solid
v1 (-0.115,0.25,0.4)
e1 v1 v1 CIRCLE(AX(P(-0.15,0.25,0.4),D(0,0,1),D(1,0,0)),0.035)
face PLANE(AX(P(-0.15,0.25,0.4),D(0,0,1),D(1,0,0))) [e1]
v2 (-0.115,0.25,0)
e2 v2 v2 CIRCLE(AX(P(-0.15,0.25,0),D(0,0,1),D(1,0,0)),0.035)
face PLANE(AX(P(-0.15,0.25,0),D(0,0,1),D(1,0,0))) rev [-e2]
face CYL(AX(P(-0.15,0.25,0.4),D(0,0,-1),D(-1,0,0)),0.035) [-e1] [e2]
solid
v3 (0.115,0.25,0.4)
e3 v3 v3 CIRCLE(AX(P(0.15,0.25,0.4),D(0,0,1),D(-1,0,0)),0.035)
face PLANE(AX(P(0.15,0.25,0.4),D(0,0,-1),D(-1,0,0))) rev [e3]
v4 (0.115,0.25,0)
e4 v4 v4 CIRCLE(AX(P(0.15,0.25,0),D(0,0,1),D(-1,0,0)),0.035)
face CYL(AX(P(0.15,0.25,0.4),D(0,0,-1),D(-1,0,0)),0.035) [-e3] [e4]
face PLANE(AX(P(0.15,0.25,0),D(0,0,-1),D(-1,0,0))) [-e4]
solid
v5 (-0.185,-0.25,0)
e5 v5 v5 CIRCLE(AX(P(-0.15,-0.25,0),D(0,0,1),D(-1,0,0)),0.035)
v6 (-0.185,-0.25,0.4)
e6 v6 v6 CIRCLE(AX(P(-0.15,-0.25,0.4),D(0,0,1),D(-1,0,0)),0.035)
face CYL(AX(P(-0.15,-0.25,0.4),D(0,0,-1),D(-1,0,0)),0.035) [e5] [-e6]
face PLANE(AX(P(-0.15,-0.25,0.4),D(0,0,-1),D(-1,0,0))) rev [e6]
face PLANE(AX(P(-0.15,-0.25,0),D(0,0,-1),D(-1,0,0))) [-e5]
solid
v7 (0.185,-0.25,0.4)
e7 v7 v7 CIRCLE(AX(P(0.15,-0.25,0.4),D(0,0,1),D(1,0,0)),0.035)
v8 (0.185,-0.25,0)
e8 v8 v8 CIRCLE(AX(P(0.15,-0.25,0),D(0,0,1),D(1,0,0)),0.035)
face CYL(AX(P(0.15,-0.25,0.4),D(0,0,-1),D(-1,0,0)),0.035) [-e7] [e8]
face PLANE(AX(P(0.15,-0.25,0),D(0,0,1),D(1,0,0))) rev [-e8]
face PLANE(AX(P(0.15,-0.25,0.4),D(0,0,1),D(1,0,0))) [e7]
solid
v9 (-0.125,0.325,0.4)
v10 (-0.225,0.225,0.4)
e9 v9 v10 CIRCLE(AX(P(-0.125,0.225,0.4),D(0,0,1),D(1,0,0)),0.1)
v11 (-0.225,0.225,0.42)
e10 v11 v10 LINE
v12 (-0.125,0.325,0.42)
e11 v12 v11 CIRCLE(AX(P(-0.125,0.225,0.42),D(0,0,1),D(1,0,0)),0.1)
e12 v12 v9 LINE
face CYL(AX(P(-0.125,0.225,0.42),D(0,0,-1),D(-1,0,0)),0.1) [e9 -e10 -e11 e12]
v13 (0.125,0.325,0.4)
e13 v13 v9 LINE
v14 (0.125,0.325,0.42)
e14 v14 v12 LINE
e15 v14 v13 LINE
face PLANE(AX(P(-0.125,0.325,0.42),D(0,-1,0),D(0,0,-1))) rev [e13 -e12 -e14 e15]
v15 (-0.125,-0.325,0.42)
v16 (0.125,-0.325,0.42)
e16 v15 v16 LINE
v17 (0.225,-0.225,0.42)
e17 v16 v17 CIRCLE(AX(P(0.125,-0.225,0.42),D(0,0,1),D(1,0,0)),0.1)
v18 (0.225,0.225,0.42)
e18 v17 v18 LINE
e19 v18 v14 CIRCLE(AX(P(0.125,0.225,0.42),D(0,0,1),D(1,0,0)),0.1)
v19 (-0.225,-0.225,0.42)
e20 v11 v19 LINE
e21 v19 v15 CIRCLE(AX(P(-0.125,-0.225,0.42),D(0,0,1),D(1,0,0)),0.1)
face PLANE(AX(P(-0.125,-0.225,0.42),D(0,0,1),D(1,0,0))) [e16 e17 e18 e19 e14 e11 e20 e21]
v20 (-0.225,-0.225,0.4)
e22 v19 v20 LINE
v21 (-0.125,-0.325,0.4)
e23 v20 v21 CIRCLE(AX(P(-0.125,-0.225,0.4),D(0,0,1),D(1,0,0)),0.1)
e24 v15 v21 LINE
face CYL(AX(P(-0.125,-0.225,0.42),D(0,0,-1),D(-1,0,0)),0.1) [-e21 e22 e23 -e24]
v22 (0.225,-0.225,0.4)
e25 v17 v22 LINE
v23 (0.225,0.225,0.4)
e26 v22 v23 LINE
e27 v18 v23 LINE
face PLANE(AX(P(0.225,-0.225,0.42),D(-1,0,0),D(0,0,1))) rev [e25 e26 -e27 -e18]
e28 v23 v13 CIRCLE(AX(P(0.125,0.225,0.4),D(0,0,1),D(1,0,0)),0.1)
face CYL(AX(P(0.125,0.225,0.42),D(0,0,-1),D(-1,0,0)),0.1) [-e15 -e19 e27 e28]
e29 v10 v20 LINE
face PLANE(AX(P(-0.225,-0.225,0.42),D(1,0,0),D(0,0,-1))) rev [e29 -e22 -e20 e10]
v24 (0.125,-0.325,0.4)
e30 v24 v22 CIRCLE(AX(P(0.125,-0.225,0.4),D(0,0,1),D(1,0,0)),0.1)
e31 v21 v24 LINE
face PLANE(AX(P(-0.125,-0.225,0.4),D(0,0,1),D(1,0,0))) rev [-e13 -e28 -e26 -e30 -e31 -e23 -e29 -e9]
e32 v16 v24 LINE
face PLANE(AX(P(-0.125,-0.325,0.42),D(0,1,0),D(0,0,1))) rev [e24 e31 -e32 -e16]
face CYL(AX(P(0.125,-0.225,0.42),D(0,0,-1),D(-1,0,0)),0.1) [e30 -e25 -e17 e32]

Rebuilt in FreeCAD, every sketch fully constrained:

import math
import FreeCAD as App
import Part
import Sketcher

doc = App.newDocument("Part")
params = doc.addObject("Spreadsheet::Sheet", "Params")
for row, (alias, value) in enumerate([
    ("sketch1_diameter", "0.07 mm"),
    ("pad1_length", "0.4 mm"),
    ("sketch2_diameter", "0.07 mm"),
    ("pad2_length", "0.4 mm"),
    ("sketch3_diameter", "0.07 mm"),
    ("pad3_length", "0.4 mm"),
    ("sketch4_diameter", "0.07 mm"),
    ("pad4_length", "0.4 mm"),
    ("sketch5_radius", "0.1 mm"),
    ("sketch5_width", "0.25 mm"),
    ("sketch5_height", "0.45 mm"),
    ("pad5_length", "0.02 mm"),
], start=1):
    params.set(f"A{row}", alias)
    params.set(f"B{row}", "=" + value)
    params.setAlias(f"B{row}", alias)

body = doc.addObject("PartDesign::Body", "Body")

# Sketch on XY plane
sketch1 = body.newObject("Sketcher::SketchObject", "Sketch")
sketch1.AttachmentSupport = (doc.getObject("XY_Plane"), [""])
sketch1.MapMode = "FlatFace"
sketch1.addGeometry(Part.Circle(App.Vector(-0.15, 0.25, 0), App.Vector(0, 0, 1), 0.035), False)
sketch1.addConstraint([
    Sketcher.Constraint("Diameter", 0, 0.07),
    Sketcher.Constraint("DistanceX", 0, 3, -1, 1, 0.15),
    Sketcher.Constraint("DistanceY", -1, 1, 0, 3, 0.25),
])
sketch1.setExpression("Constraints[0]", "Params.sketch1_diameter")
pad1 = body.newObject("PartDesign::Pad", "Pad")
pad1.Profile = sketch1
pad1.setExpression("Length", "Params.pad1_length")
body2 = doc.addObject("PartDesign::Body", "Body001")

# Sketch on XY plane
sketch2 = body2.newObject("Sketcher::SketchObject", "Sketch001")
sketch2.AttachmentSupport = (doc.getObject("XY_Plane001"), [""])
sketch2.MapMode = "FlatFace"
sketch2.addGeometry(Part.Circle(App.Vector(-0.15, -0.25, 0), App.Vector(0, 0, 1), 0.035), False)
sketch2.addConstraint([
    Sketcher.Constraint("Diameter", 0, 0.07),
    Sketcher.Constraint("DistanceX", 0, 3, -1, 1, 0.15),
    Sketcher.Constraint("DistanceY", 0, 3, -1, 1, 0.25),
])
sketch2.setExpression("Constraints[0]", "Params.sketch2_diameter")
pad2 = body2.newObject("PartDesign::Pad", "Pad001")
pad2.Profile = sketch2
pad2.setExpression("Length", "Params.pad2_length")
body3 = doc.addObject("PartDesign::Body", "Body002")

# Sketch on XY plane
sketch3 = body3.newObject("Sketcher::SketchObject", "Sketch002")
sketch3.AttachmentSupport = (doc.getObject("XY_Plane002"), [""])
sketch3.MapMode = "FlatFace"
sketch3.addGeometry(Part.Circle(App.Vector(0.15, -0.25, 0), App.Vector(0, 0, 1), 0.035), False)
sketch3.addConstraint([
    Sketcher.Constraint("Diameter", 0, 0.07),
    Sketcher.Constraint("DistanceX", -1, 1, 0, 3, 0.15),
    Sketcher.Constraint("DistanceY", 0, 3, -1, 1, 0.25),
])
sketch3.setExpression("Constraints[0]", "Params.sketch3_diameter")
pad3 = body3.newObject("PartDesign::Pad", "Pad002")
pad3.Profile = sketch3
pad3.setExpression("Length", "Params.pad3_length")
body4 = doc.addObject("PartDesign::Body", "Body003")

# Sketch on XY plane
sketch4 = body4.newObject("Sketcher::SketchObject", "Sketch003")
sketch4.AttachmentSupport = (doc.getObject("XY_Plane003"), [""])
sketch4.MapMode = "FlatFace"
sketch4.addGeometry(Part.Circle(App.Vector(0.15, 0.25, 0), App.Vector(0, 0, 1), 0.035), False)
sketch4.addConstraint([
    Sketcher.Constraint("Diameter", 0, 0.07),
    Sketcher.Constraint("DistanceX", -1, 1, 0, 3, 0.15),
    Sketcher.Constraint("DistanceY", -1, 1, 0, 3, 0.25),
])
sketch4.setExpression("Constraints[0]", "Params.sketch4_diameter")
pad4 = body4.newObject("PartDesign::Pad", "Pad003")
pad4.Profile = sketch4
pad4.setExpression("Length", "Params.pad4_length")
body5 = doc.addObject("PartDesign::Body", "Body004")

# Sketch on XY plane
sketch5 = body5.newObject("Sketcher::SketchObject", "Sketch004")
sketch5.AttachmentSupport = (doc.getObject("XY_Plane004"), [""])
sketch5.MapMode = "FlatFace"
sketch5.AttachmentOffset = App.Placement(App.Vector(0, 0, 0.4), App.Rotation())
sketch5.addGeometry([
    Part.LineSegment(App.Vector(-0.12, -0.33, 0), App.Vector(0.12, -0.33, 0)),  # 0
    Part.ArcOfCircle(Part.Circle(App.Vector(0.12, -0.23, 0), App.Vector(0, 0, 1), 0.1), math.radians(-90), math.radians(0)),  # 1
    Part.LineSegment(App.Vector(0.23, -0.23, 0), App.Vector(0.23, 0.23, 0)),  # 2
    Part.ArcOfCircle(Part.Circle(App.Vector(0.12, 0.23, 0), App.Vector(0, 0, 1), 0.1), math.radians(0), math.radians(90)),  # 3
    Part.LineSegment(App.Vector(0.12, 0.33, 0), App.Vector(-0.12, 0.33, 0)),  # 4
    Part.ArcOfCircle(Part.Circle(App.Vector(-0.12, 0.23, 0), App.Vector(0, 0, 1), 0.1), math.radians(90), math.radians(180)),  # 5
    Part.LineSegment(App.Vector(-0.23, 0.23, 0), App.Vector(-0.23, -0.23, 0)),  # 6
    Part.ArcOfCircle(Part.Circle(App.Vector(-0.12, -0.23, 0), App.Vector(0, 0, 1), 0.1), math.radians(180), math.radians(270)),  # 7
], False)
sketch5.addConstraint([
    Sketcher.Constraint("Tangent", 0, 2, 1, 1),
    Sketcher.Constraint("Tangent", 1, 2, 2, 1),
    Sketcher.Constraint("Tangent", 2, 2, 3, 1),
    Sketcher.Constraint("Tangent", 3, 2, 4, 1),
    Sketcher.Constraint("Tangent", 4, 2, 5, 1),
    Sketcher.Constraint("Tangent", 5, 2, 6, 1),
    Sketcher.Constraint("Tangent", 6, 2, 7, 1),
    Sketcher.Constraint("Tangent", 7, 2, 0, 1),
    Sketcher.Constraint("Horizontal", 0),
    Sketcher.Constraint("Vertical", 2),
    Sketcher.Constraint("Horizontal", 4),
    Sketcher.Constraint("Vertical", 6),
    Sketcher.Constraint("Equal", 1, 3),
    Sketcher.Constraint("Equal", 3, 5),
    Sketcher.Constraint("Equal", 5, 7),
    Sketcher.Constraint("Symmetric", 1, 3, 5, 3, -1, 1),
    Sketcher.Constraint("Radius", 1, 0.1),
    Sketcher.Constraint("DistanceX", 0, 1, 0, 2, 0.25),
    Sketcher.Constraint("DistanceY", 2, 1, 2, 2, 0.45),
])
sketch5.setExpression("Constraints[16]", "Params.sketch5_radius")
sketch5.setExpression("Constraints[17]", "Params.sketch5_width")
sketch5.setExpression("Constraints[18]", "Params.sketch5_height")
pad5 = body5.newObject("PartDesign::Pad", "Pad004")
pad5.Profile = sketch5
pad5.setExpression("Length", "Params.pad5_length")

doc.recompute()
